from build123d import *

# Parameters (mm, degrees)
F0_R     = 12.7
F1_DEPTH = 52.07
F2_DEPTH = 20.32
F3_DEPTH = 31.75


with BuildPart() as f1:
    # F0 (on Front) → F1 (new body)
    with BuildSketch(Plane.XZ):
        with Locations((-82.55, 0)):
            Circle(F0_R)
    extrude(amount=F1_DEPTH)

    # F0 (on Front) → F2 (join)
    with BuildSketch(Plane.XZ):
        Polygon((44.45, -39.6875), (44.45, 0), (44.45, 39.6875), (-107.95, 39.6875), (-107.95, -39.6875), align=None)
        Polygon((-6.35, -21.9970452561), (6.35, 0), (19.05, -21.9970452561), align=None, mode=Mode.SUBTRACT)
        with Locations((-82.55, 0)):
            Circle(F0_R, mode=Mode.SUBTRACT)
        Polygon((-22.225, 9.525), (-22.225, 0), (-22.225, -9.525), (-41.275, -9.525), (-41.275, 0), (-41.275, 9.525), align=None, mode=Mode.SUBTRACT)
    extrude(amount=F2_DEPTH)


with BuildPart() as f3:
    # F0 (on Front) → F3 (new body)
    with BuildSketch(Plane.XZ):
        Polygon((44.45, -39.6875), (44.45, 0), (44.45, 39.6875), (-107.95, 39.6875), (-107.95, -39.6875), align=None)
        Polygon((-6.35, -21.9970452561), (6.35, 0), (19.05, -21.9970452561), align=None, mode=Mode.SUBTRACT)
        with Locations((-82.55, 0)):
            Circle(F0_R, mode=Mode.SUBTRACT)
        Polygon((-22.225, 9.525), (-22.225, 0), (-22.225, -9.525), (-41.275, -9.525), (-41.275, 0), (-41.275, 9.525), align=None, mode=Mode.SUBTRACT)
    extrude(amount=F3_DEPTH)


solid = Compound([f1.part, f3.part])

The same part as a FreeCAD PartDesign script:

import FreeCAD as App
import Part
import Sketcher

V = App.Vector
Q = App.Units.Quantity

doc = App.newDocument("Part")
params = doc.addObject("Spreadsheet::Sheet", "Params")
for row, (alias, value) in enumerate([
    ("sketch1_diameter", "1 in"),
    ("pad1_length", "2.05 in"),
    ("sketch2_diameter", "1 in"),
    ("sketch2_width", "6 in"),
    ("sketch2_width2", "1 in"),
    ("sketch2_length", "1 in"),
    ("sketch2_width3", "0.75 in"),
    ("pad2_length", "0.8 in"),
    ("sketch3_diameter", "1 in"),
    ("sketch3_width", "6 in"),
    ("sketch3_width2", "1 in"),
    ("sketch3_length", "1 in"),
    ("sketch3_width3", "0.75 in"),
    ("pad3_length", "1.25 in"),
], start=1):
    params.set(f"A{row}", alias)
    params.set(f"B{row}", "=" + value)
    params.setAlias(f"B{row}", alias)

body = doc.addObject("PartDesign::Body", "Body")

# Sketch on XZ plane
sketch1 = doc.addObject("Sketcher::SketchObject", "Sketch")
body.addObject(sketch1)
sketch1.AttachmentSupport = (doc.XZ_Plane, [""])
sketch1.MapMode = "FlatFace"
sketch1.addGeometry(Part.Circle(V(-83, 0, 0), V(0, 0, 1), 13), False)
sketch1.addConstraint(Sketcher.Constraint("PointOnObject", 0, 3, -1))
sketch1.addConstraint(Sketcher.Constraint("Diameter", 0, Q("1 in")))
sketch1.addConstraint(Sketcher.Constraint("DistanceX", 0, 3, -1, 1, Q("3.25 in")))
sketch1.setExpression("Constraints[1]", "Params.sketch1_diameter")
pad1 = doc.addObject("PartDesign::Pad", "Pad")
body.addObject(pad1)
pad1.Profile = sketch1
pad1.setExpression("Length", "Params.pad1_length")

# Sketch on XZ plane
sketch2 = doc.addObject("Sketcher::SketchObject", "Sketch001")
body.addObject(sketch2)
sketch2.AttachmentSupport = (doc.XZ_Plane, [""])
sketch2.MapMode = "FlatFace"
sketch2.addGeometry(Part.LineSegment(V(44, -40, 0), V(44, 40, 0)), False)
sketch2.addGeometry(Part.LineSegment(V(44, 40, 0), V(-108, 40, 0)), False)
sketch2.addGeometry(Part.LineSegment(V(-108, 40, 0), V(-108, -40, 0)), False)
sketch2.addGeometry(Part.LineSegment(V(-108, -40, 0), V(44, -40, 0)), False)
sketch2.addGeometry(Part.LineSegment(V(19, -22, 0), V(-6, -22, 0)), False)
sketch2.addGeometry(Part.LineSegment(V(-6, -22, 0), V(6, 0, 0)), False)
sketch2.addGeometry(Part.LineSegment(V(6, 0, 0), V(19, -22, 0)), False)
sketch2.addGeometry(Part.Circle(V(-83, 0, 0), V(0, 0, 1), 13), False)
sketch2.addGeometry(Part.LineSegment(V(-41, 10, 0), V(-22, 10, 0)), False)
sketch2.addGeometry(Part.LineSegment(V(-22, 10, 0), V(-22, -10, 0)), False)
sketch2.addGeometry(Part.LineSegment(V(-22, -10, 0), V(-41, -10, 0)), False)
sketch2.addGeometry(Part.LineSegment(V(-41, -10, 0), V(-41, 10, 0)), False)
sketch2.addConstraint(Sketcher.Constraint("Coincident", 0, 2, 1, 1))
sketch2.addConstraint(Sketcher.Constraint("Coincident", 1, 2, 2, 1))
sketch2.addConstraint(Sketcher.Constraint("Coincident", 2, 2, 3, 1))
sketch2.addConstraint(Sketcher.Constraint("Coincident", 3, 2, 0, 1))
sketch2.addConstraint(Sketcher.Constraint("Coincident", 4, 2, 5, 1))
sketch2.addConstraint(Sketcher.Constraint("Coincident", 5, 2, 6, 1))
sketch2.addConstraint(Sketcher.Constraint("Coincident", 6, 2, 4, 1))
sketch2.addConstraint(Sketcher.Constraint("Coincident", 8, 2, 9, 1))
sketch2.addConstraint(Sketcher.Constraint("Coincident", 9, 2, 10, 1))
sketch2.addConstraint(Sketcher.Constraint("Coincident", 10, 2, 11, 1))
sketch2.addConstraint(Sketcher.Constraint("Coincident", 11, 2, 8, 1))
sketch2.addConstraint(Sketcher.Constraint("Vertical", 0))
sketch2.addConstraint(Sketcher.Constraint("Horizontal", 1))
sketch2.addConstraint(Sketcher.Constraint("Vertical", 2))
sketch2.addConstraint(Sketcher.Constraint("Horizontal", 3))
sketch2.addConstraint(Sketcher.Constraint("Horizontal", 4))
sketch2.addConstraint(Sketcher.Constraint("Horizontal", 8))
sketch2.addConstraint(Sketcher.Constraint("Vertical", 9))
sketch2.addConstraint(Sketcher.Constraint("Horizontal", 10))
sketch2.addConstraint(Sketcher.Constraint("Vertical", 11))
sketch2.addConstraint(Sketcher.Constraint("PointOnObject", 7, 3, -1))
sketch2.addConstraint(Sketcher.Constraint("PointOnObject", 5, 2, -1))
sketch2.addConstraint(Sketcher.Constraint("Equal", 10, 9))
sketch2.addConstraint(Sketcher.Constraint("Equal", 5, 6))
sketch2.addConstraint(Sketcher.Constraint("Diameter", 7, Q("1 in")))
sketch2.addConstraint(Sketcher.Constraint("DistanceX", 1, 2, 1, 1, Q("6 in")))
sketch2.addConstraint(Sketcher.Constraint("DistanceX", 4, 2, 4, 1, Q("1 in")))
sketch2.addConstraint(Sketcher.Constraint("Distance", 5, Q("1 in")))
sketch2.addConstraint(Sketcher.Constraint("DistanceX", 7, 3, 0, 2, Q("5 in")))
sketch2.addConstraint(Sketcher.Constraint("DistanceX", 4, 2, 3, 2, Q("2 in")))
sketch2.addConstraint(Sketcher.Constraint("DistanceX", 8, 1, 8, 2, Q("0.75 in")))
sketch2.addConstraint(Sketcher.Constraint("DistanceY", 0, 1, 0, 2, Q("3.125 in")))
sketch2.addConstraint(Sketcher.Constraint("DistanceX", 7, 3, -1, 1, Q("3.25 in")))
sketch2.addConstraint(Sketcher.Constraint("DistanceY", -1, 1, 0, 2, Q("1.5625 in")))
sketch2.addConstraint(Sketcher.Constraint("DistanceX", 8, 2, -1, 1, Q("0.875 in")))
sketch2.addConstraint(Sketcher.Constraint("DistanceY", -1, 1, 8, 2, Q("0.375 in")))
sketch2.setExpression("Constraints[24]", "Params.sketch2_diameter")
sketch2.setExpression("Constraints[25]", "Params.sketch2_width")
sketch2.setExpression("Constraints[26]", "Params.sketch2_width2")
sketch2.setExpression("Constraints[27]", "Params.sketch2_length")
sketch2.setExpression("Constraints[30]", "Params.sketch2_width3")
pad2 = doc.addObject("PartDesign::Pad", "Pad001")
body.addObject(pad2)
pad2.Profile = sketch2
pad2.setExpression("Length", "Params.pad2_length")
body2 = doc.addObject("PartDesign::Body", "Body001")

# Sketch on XZ plane
sketch3 = doc.addObject("Sketcher::SketchObject", "Sketch002")
body2.addObject(sketch3)
sketch3.AttachmentSupport = (doc.getObject("XZ_Plane001"), [""])
sketch3.MapMode = "FlatFace"
sketch3.addGeometry(Part.LineSegment(V(44, -40, 0), V(44, 40, 0)), False)
sketch3.addGeometry(Part.LineSegment(V(44, 40, 0), V(-108, 40, 0)), False)
sketch3.addGeometry(Part.LineSegment(V(-108, 40, 0), V(-108, -40, 0)), False)
sketch3.addGeometry(Part.LineSegment(V(-108, -40, 0), V(44, -40, 0)), False)
sketch3.addGeometry(Part.LineSegment(V(19, -22, 0), V(-6, -22, 0)), False)
sketch3.addGeometry(Part.LineSegment(V(-6, -22, 0), V(6, 0, 0)), False)
sketch3.addGeometry(Part.LineSegment(V(6, 0, 0), V(19, -22, 0)), False)
sketch3.addGeometry(Part.Circle(V(-83, 0, 0), V(0, 0, 1), 13), False)
sketch3.addGeometry(Part.LineSegment(V(-41, 10, 0), V(-22, 10, 0)), False)
sketch3.addGeometry(Part.LineSegment(V(-22, 10, 0), V(-22, -10, 0)), False)
sketch3.addGeometry(Part.LineSegment(V(-22, -10, 0), V(-41, -10, 0)), False)
sketch3.addGeometry(Part.LineSegment(V(-41, -10, 0), V(-41, 10, 0)), False)
sketch3.addConstraint(Sketcher.Constraint("Coincident", 0, 2, 1, 1))
sketch3.addConstraint(Sketcher.Constraint("Coincident", 1, 2, 2, 1))
sketch3.addConstraint(Sketcher.Constraint("Coincident", 2, 2, 3, 1))
sketch3.addConstraint(Sketcher.Constraint("Coincident", 3, 2, 0, 1))
sketch3.addConstraint(Sketcher.Constraint("Coincident", 4, 2, 5, 1))
sketch3.addConstraint(Sketcher.Constraint("Coincident", 5, 2, 6, 1))
sketch3.addConstraint(Sketcher.Constraint("Coincident", 6, 2, 4, 1))
sketch3.addConstraint(Sketcher.Constraint("Coincident", 8, 2, 9, 1))
sketch3.addConstraint(Sketcher.Constraint("Coincident", 9, 2, 10, 1))
sketch3.addConstraint(Sketcher.Constraint("Coincident", 10, 2, 11, 1))
sketch3.addConstraint(Sketcher.Constraint("Coincident", 11, 2, 8, 1))
sketch3.addConstraint(Sketcher.Constraint("Vertical", 0))
sketch3.addConstraint(Sketcher.Constraint("Horizontal", 1))
sketch3.addConstraint(Sketcher.Constraint("Vertical", 2))
sketch3.addConstraint(Sketcher.Constraint("Horizontal", 3))
sketch3.addConstraint(Sketcher.Constraint("Horizontal", 4))
sketch3.addConstraint(Sketcher.Constraint("Horizontal", 8))
sketch3.addConstraint(Sketcher.Constraint("Vertical", 9))
sketch3.addConstraint(Sketcher.Constraint("Horizontal", 10))
sketch3.addConstraint(Sketcher.Constraint("Vertical", 11))
sketch3.addConstraint(Sketcher.Constraint("PointOnObject", 7, 3, -1))
sketch3.addConstraint(Sketcher.Constraint("PointOnObject", 5, 2, -1))
sketch3.addConstraint(Sketcher.Constraint("Equal", 10, 9))
sketch3.addConstraint(Sketcher.Constraint("Equal", 5, 6))
sketch3.addConstraint(Sketcher.Constraint("Diameter", 7, Q("1 in")))
sketch3.addConstraint(Sketcher.Constraint("DistanceX", 1, 2, 1, 1, Q("6 in")))
sketch3.addConstraint(Sketcher.Constraint("DistanceX", 4, 2, 4, 1, Q("1 in")))
sketch3.addConstraint(Sketcher.Constraint("Distance", 5, Q("1 in")))
sketch3.addConstraint(Sketcher.Constraint("DistanceX", 7, 3, 0, 2, Q("5 in")))
sketch3.addConstraint(Sketcher.Constraint("DistanceX", 4, 2, 3, 2, Q("2 in")))
sketch3.addConstraint(Sketcher.Constraint("DistanceX", 8, 1, 8, 2, Q("0.75 in")))
sketch3.addConstraint(Sketcher.Constraint("DistanceY", 0, 1, 0, 2, Q("3.125 in")))
sketch3.addConstraint(Sketcher.Constraint("DistanceX", 7, 3, -1, 1, Q("3.25 in")))
sketch3.addConstraint(Sketcher.Constraint("DistanceY", -1, 1, 0, 2, Q("1.5625 in")))
sketch3.addConstraint(Sketcher.Constraint("DistanceX", 8, 2, -1, 1, Q("0.875 in")))
sketch3.addConstraint(Sketcher.Constraint("DistanceY", -1, 1, 8, 2, Q("0.375 in")))
sketch3.setExpression("Constraints[24]", "Params.sketch3_diameter")
sketch3.setExpression("Constraints[25]", "Params.sketch3_width")
sketch3.setExpression("Constraints[26]", "Params.sketch3_width2")
sketch3.setExpression("Constraints[27]", "Params.sketch3_length")
sketch3.setExpression("Constraints[30]", "Params.sketch3_width3")
pad3 = doc.addObject("PartDesign::Pad", "Pad002")
body2.addObject(pad3)
pad3.Profile = sketch3
pad3.setExpression("Length", "Params.pad3_length")

doc.recompute()
